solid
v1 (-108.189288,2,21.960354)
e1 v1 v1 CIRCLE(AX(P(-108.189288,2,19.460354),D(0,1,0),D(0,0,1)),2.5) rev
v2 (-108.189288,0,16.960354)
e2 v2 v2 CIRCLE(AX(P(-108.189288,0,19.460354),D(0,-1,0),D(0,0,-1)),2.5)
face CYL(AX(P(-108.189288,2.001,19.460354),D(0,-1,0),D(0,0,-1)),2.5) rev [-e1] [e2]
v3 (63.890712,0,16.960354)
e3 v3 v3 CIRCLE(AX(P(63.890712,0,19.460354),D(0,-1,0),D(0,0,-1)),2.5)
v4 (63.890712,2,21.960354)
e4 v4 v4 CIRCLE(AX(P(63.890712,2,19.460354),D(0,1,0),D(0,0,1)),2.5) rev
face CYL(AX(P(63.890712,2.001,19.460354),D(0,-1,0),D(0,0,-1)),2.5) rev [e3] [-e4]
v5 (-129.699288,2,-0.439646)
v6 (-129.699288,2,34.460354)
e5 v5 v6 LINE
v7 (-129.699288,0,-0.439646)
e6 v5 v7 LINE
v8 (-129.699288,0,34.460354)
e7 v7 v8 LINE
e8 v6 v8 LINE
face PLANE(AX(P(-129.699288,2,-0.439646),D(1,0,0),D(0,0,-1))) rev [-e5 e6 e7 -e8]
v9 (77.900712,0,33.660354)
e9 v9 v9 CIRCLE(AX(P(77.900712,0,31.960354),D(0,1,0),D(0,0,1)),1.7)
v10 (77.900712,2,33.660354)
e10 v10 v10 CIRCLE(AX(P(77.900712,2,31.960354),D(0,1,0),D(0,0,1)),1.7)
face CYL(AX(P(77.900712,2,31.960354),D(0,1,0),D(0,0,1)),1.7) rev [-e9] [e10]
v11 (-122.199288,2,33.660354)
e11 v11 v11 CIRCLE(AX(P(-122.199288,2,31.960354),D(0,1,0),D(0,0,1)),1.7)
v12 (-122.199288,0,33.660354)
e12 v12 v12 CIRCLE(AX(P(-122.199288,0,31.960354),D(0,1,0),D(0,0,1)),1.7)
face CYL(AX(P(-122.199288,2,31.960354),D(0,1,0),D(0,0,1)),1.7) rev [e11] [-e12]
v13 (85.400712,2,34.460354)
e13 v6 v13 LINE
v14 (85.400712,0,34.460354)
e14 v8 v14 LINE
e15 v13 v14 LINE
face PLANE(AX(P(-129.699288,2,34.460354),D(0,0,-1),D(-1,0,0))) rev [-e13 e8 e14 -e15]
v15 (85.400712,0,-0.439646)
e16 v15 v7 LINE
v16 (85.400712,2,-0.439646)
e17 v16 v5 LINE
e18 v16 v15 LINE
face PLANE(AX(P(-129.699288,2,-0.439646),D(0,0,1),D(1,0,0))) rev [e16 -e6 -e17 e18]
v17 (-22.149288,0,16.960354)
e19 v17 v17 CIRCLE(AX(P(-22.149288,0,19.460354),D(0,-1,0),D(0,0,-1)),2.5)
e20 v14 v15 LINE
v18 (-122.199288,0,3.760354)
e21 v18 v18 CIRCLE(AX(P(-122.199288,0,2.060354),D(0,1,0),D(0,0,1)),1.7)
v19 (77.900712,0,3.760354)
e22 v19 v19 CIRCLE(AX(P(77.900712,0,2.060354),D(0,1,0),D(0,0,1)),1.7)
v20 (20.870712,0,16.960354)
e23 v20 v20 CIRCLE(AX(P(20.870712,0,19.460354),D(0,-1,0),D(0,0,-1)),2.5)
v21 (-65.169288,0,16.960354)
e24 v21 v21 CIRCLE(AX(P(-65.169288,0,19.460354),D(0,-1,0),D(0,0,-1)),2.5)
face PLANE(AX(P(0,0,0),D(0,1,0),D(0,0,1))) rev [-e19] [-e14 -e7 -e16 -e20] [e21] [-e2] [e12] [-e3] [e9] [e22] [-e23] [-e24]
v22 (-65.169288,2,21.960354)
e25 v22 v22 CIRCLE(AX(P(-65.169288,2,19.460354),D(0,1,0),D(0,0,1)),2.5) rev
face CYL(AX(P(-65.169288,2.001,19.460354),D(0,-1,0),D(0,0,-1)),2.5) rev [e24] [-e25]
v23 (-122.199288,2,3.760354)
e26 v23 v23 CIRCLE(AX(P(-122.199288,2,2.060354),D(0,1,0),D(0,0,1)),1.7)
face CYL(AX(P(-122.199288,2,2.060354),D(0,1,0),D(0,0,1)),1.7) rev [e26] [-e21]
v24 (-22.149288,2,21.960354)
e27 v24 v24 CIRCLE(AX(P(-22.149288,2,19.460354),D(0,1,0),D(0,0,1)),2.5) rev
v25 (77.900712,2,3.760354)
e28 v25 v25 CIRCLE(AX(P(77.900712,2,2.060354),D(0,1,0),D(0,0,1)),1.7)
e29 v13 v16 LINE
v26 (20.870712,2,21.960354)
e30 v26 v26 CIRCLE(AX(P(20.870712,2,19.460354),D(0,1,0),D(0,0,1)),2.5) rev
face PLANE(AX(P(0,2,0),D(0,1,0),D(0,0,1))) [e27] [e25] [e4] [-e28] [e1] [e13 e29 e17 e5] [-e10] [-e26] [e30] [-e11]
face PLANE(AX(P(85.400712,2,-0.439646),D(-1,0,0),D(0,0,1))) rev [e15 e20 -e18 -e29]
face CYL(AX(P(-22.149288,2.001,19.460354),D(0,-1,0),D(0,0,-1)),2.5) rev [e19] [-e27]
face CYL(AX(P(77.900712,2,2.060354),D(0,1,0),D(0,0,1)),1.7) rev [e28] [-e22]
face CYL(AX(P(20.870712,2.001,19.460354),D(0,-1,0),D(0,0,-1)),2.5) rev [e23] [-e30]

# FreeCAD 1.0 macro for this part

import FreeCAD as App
import Part
import Sketcher
Q = App.Units.Quantity


def add_polygon(sketch, points):
    """Adds a closed chain of lines whose ends are joined by coincident constraints."""
    first, n = sketch.GeometryCount, len(points)
    for a, b in zip(points, points[1:] + points[:1]):
        sketch.addGeometry(Part.LineSegment(App.Vector(*a, 0), App.Vector(*b, 0)), False)
    for i in range(n):
        sketch.addConstraint(Sketcher.Constraint("Coincident", first + i, 2, first + (i + 1) % n, 1))

doc = App.newDocument("Part")
params = doc.addObject("Spreadsheet::Sheet", "Params")
for row, (alias, value) in enumerate([
    ("sketch1_width", "215.1 mm"),
    ("sketch1_height", "34.9 mm"),
    ("pad1_length", "2 mm"),
    ("sketch2_diameter", "3.4 mm"),
    ("hole_diameter", "3.4 mm"),
    ("sketch3_diameter", "5 mm"),
    ("sketch4_diameter", "5 mm"),
    ("sketch5_diameter", "5 mm"),
    ("sketch6_diameter", "5 mm"),
    ("sketch7_diameter", "5 mm"),
], start=1):
    params.set(f"A{row}", alias)
    params.set(f"B{row}", "=" + value)
    params.setAlias(f"B{row}", alias)

body = doc.addObject("PartDesign::Body", "Body")

sketch1 = doc.addObject("Sketcher::SketchObject", "Sketch")
body.addObject(sketch1)
sketch1.AttachmentSupport = (doc.XZ_Plane, [""])
sketch1.MapMode = "FlatFace"
add_polygon(sketch1, [(-129.699288, -0.439646), (-129.699288, 34.460354), (85.400712, 34.460354), (85.400712, -0.439646)])
sketch1.addConstraint([
    Sketcher.Constraint("Vertical", 0),
    Sketcher.Constraint("Horizontal", 1),
    Sketcher.Constraint("Vertical", 2),
    Sketcher.Constraint("Horizontal", 3),
    Sketcher.Constraint("DistanceX", 1, 1, 1, 2, Q("215.1 mm")),
    Sketcher.Constraint("DistanceY", 0, 1, 0, 2, Q("34.9 mm")),
    Sketcher.Constraint("DistanceX", 0, 2, -1, 1, Q("129.699288 mm")),
    Sketcher.Constraint("DistanceY", -1, 1, 0, 2, Q("34.460354 mm")),
])
sketch1.setExpression("Constraints[8]", "Params.sketch1_width")
sketch1.setExpression("Constraints[9]", "Params.sketch1_height")
pad1 = doc.addObject("PartDesign::Pad", "Pad")
body.addObject(pad1)
pad1.Profile = sketch1
pad1.setExpression("Length", "Params.pad1_length")
pad1.Reversed = True

sketch2 = doc.addObject("Sketcher::SketchObject", "Sketch001")
body.addObject(sketch2)
sketch2.AttachmentSupport = (doc.XZ_Plane, [""])
sketch2.MapMode = "FlatFace"
sketch2.AttachmentOffset = App.Placement(App.Vector(0, 0, -2), App.Rotation())
sketch2.addGeometry([
    Part.Circle(App.Vector(-122.199288, 2.060354, 0), App.Vector(0, 0, 1), 1.7),
    Part.Circle(App.Vector(-122.199288, 31.960354, 0), App.Vector(0, 0, 1), 1.7),
    Part.Circle(App.Vector(77.900712, 2.060354, 0), App.Vector(0, 0, 1), 1.7),
    Part.Circle(App.Vector(77.900712, 31.960354, 0), App.Vector(0, 0, 1), 1.7),
], False)
sketch2.addConstraint([
    Sketcher.Constraint("Equal", 0, 1),
    Sketcher.Constraint("Equal", 1, 2),
    Sketcher.Constraint("Equal", 2, 3),
    Sketcher.Constraint("Horizontal", 0, 3, 2, 3),
    Sketcher.Constraint("Horizontal", 1, 3, 3, 3),
    Sketcher.Constraint("Vertical", 0, 3, 1, 3),
    Sketcher.Constraint("Vertical", 2, 3, 3, 3),
    Sketcher.Constraint("Diameter", 0, Q("3.4 mm")),
    Sketcher.Constraint("DistanceY", 0, 3, 1, 3, Q("29.9 mm")),
    Sketcher.Constraint("DistanceX", 0, 3, 2, 3, Q("200.1 mm")),
    Sketcher.Constraint("DistanceX", 0, 3, -1, 1, Q("122.199288 mm")),
    Sketcher.Constraint("DistanceY", -1, 1, 0, 3, Q("2.060354 mm")),
])
sketch2.setExpression("Constraints[7]", "Params.sketch2_diameter")
doc.recompute()
hole = doc.addObject("PartDesign::Hole", "Hole")
body.addObject(hole)
hole.Profile = sketch2
hole.ThreadType = "None"
hole.setExpression("Diameter", "Params.hole_diameter")
hole.DepthType = "ThroughAll"
hole.Reversed = True

sketch3 = doc.addObject("Sketcher::SketchObject", "Sketch002")
body.addObject(sketch3)
sketch3.AttachmentSupport = (doc.XZ_Plane, [""])
sketch3.MapMode = "FlatFace"
sketch3.addGeometry(Part.Circle(App.Vector(-108.189288, 19.460354, 0), App.Vector(0, 0, 1), 2.5), False)
sketch3.addConstraint([
    Sketcher.Constraint("Diameter", 0, Q("5 mm")),
    Sketcher.Constraint("DistanceX", 0, 3, -1, 1, Q("108.189288 mm")),
    Sketcher.Constraint("DistanceY", -1, 1, 0, 3, Q("19.460354 mm")),
])
sketch3.setExpression("Constraints[0]", "Params.sketch3_diameter")
pocket1 = doc.addObject("PartDesign::Pocket", "Pocket")
body.addObject(pocket1)
pocket1.Profile = sketch3
pocket1.Type = "UpToFirst"

sketch4 = doc.addObject("Sketcher::SketchObject", "Sketch003")
body.addObject(sketch4)
sketch4.AttachmentSupport = (doc.XZ_Plane, [""])
sketch4.MapMode = "FlatFace"
sketch4.addGeometry(Part.Circle(App.Vector(-65.169288, 19.460354, 0), App.Vector(0, 0, 1), 2.5), False)
sketch4.addConstraint([
    Sketcher.Constraint("Diameter", 0, Q("5 mm")),
    Sketcher.Constraint("DistanceX", 0, 3, -1, 1, Q("65.169288 mm")),
    Sketcher.Constraint("DistanceY", -1, 1, 0, 3, Q("19.460354 mm")),
])
sketch4.setExpression("Constraints[0]", "Params.sketch4_diameter")
pocket2 = doc.addObject("PartDesign::Pocket", "Pocket001")
body.addObject(pocket2)
pocket2.Profile = sketch4
pocket2.Type = "UpToFirst"

sketch5 = doc.addObject("Sketcher::SketchObject", "Sketch004")
body.addObject(sketch5)
sketch5.AttachmentSupport = (doc.XZ_Plane, [""])
sketch5.MapMode = "FlatFace"
sketch5.addGeometry(Part.Circle(App.Vector(-22.149288, 19.460354, 0), App.Vector(0, 0, 1), 2.5), False)
sketch5.addConstraint([
    Sketcher.Constraint("Diameter", 0, Q("5 mm")),
    Sketcher.Constraint("DistanceX", 0, 3, -1, 1, Q("22.149288 mm")),
    Sketcher.Constraint("DistanceY", -1, 1, 0, 3, Q("19.460354 mm")),
])
sketch5.setExpression("Constraints[0]", "Params.sketch5_diameter")
pocket3 = doc.addObject("PartDesign::Pocket", "Pocket002")
body.addObject(pocket3)
pocket3.Profile = sketch5
pocket3.Type = "UpToFirst"

sketch6 = doc.addObject("Sketcher::SketchObject", "Sketch005")
body.addObject(sketch6)
sketch6.AttachmentSupport = (doc.XZ_Plane, [""])
sketch6.MapMode = "FlatFace"
sketch6.addGeometry(Part.Circle(App.Vector(20.870712, 19.460354, 0), App.Vector(0, 0, 1), 2.5), False)
sketch6.addConstraint([
    Sketcher.Constraint("Diameter", 0, Q("5 mm")),
    Sketcher.Constraint("DistanceX", -1, 1, 0, 3, Q("20.870712 mm")),
    Sketcher.Constraint("DistanceY", -1, 1, 0, 3, Q("19.460354 mm")),
])
sketch6.setExpression("Constraints[0]", "Params.sketch6_diameter")
pocket4 = doc.addObject("PartDesign::Pocket", "Pocket003")
body.addObject(pocket4)
pocket4.Profile = sketch6
pocket4.Type = "UpToFirst"

sketch7 = doc.addObject("Sketcher::SketchObject", "Sketch006")
body.addObject(sketch7)
sketch7.AttachmentSupport = (doc.XZ_Plane, [""])
sketch7.MapMode = "FlatFace"
sketch7.addGeometry(Part.Circle(App.Vector(63.890712, 19.460354, 0), App.Vector(0, 0, 1), 2.5), False)
sketch7.addConstraint([
    Sketcher.Constraint("Diameter", 0, Q("5 mm")),
    Sketcher.Constraint("DistanceX", -1, 1, 0, 3, Q("63.890712 mm")),
    Sketcher.Constraint("DistanceY", -1, 1, 0, 3, Q("19.460354 mm")),
])
sketch7.setExpression("Constraints[0]", "Params.sketch7_diameter")
pocket5 = doc.addObject("PartDesign::Pocket", "Pocket004")
body.addObject(pocket5)
pocket5.Profile = sketch7
pocket5.Type = "UpToFirst"

doc.recompute()
